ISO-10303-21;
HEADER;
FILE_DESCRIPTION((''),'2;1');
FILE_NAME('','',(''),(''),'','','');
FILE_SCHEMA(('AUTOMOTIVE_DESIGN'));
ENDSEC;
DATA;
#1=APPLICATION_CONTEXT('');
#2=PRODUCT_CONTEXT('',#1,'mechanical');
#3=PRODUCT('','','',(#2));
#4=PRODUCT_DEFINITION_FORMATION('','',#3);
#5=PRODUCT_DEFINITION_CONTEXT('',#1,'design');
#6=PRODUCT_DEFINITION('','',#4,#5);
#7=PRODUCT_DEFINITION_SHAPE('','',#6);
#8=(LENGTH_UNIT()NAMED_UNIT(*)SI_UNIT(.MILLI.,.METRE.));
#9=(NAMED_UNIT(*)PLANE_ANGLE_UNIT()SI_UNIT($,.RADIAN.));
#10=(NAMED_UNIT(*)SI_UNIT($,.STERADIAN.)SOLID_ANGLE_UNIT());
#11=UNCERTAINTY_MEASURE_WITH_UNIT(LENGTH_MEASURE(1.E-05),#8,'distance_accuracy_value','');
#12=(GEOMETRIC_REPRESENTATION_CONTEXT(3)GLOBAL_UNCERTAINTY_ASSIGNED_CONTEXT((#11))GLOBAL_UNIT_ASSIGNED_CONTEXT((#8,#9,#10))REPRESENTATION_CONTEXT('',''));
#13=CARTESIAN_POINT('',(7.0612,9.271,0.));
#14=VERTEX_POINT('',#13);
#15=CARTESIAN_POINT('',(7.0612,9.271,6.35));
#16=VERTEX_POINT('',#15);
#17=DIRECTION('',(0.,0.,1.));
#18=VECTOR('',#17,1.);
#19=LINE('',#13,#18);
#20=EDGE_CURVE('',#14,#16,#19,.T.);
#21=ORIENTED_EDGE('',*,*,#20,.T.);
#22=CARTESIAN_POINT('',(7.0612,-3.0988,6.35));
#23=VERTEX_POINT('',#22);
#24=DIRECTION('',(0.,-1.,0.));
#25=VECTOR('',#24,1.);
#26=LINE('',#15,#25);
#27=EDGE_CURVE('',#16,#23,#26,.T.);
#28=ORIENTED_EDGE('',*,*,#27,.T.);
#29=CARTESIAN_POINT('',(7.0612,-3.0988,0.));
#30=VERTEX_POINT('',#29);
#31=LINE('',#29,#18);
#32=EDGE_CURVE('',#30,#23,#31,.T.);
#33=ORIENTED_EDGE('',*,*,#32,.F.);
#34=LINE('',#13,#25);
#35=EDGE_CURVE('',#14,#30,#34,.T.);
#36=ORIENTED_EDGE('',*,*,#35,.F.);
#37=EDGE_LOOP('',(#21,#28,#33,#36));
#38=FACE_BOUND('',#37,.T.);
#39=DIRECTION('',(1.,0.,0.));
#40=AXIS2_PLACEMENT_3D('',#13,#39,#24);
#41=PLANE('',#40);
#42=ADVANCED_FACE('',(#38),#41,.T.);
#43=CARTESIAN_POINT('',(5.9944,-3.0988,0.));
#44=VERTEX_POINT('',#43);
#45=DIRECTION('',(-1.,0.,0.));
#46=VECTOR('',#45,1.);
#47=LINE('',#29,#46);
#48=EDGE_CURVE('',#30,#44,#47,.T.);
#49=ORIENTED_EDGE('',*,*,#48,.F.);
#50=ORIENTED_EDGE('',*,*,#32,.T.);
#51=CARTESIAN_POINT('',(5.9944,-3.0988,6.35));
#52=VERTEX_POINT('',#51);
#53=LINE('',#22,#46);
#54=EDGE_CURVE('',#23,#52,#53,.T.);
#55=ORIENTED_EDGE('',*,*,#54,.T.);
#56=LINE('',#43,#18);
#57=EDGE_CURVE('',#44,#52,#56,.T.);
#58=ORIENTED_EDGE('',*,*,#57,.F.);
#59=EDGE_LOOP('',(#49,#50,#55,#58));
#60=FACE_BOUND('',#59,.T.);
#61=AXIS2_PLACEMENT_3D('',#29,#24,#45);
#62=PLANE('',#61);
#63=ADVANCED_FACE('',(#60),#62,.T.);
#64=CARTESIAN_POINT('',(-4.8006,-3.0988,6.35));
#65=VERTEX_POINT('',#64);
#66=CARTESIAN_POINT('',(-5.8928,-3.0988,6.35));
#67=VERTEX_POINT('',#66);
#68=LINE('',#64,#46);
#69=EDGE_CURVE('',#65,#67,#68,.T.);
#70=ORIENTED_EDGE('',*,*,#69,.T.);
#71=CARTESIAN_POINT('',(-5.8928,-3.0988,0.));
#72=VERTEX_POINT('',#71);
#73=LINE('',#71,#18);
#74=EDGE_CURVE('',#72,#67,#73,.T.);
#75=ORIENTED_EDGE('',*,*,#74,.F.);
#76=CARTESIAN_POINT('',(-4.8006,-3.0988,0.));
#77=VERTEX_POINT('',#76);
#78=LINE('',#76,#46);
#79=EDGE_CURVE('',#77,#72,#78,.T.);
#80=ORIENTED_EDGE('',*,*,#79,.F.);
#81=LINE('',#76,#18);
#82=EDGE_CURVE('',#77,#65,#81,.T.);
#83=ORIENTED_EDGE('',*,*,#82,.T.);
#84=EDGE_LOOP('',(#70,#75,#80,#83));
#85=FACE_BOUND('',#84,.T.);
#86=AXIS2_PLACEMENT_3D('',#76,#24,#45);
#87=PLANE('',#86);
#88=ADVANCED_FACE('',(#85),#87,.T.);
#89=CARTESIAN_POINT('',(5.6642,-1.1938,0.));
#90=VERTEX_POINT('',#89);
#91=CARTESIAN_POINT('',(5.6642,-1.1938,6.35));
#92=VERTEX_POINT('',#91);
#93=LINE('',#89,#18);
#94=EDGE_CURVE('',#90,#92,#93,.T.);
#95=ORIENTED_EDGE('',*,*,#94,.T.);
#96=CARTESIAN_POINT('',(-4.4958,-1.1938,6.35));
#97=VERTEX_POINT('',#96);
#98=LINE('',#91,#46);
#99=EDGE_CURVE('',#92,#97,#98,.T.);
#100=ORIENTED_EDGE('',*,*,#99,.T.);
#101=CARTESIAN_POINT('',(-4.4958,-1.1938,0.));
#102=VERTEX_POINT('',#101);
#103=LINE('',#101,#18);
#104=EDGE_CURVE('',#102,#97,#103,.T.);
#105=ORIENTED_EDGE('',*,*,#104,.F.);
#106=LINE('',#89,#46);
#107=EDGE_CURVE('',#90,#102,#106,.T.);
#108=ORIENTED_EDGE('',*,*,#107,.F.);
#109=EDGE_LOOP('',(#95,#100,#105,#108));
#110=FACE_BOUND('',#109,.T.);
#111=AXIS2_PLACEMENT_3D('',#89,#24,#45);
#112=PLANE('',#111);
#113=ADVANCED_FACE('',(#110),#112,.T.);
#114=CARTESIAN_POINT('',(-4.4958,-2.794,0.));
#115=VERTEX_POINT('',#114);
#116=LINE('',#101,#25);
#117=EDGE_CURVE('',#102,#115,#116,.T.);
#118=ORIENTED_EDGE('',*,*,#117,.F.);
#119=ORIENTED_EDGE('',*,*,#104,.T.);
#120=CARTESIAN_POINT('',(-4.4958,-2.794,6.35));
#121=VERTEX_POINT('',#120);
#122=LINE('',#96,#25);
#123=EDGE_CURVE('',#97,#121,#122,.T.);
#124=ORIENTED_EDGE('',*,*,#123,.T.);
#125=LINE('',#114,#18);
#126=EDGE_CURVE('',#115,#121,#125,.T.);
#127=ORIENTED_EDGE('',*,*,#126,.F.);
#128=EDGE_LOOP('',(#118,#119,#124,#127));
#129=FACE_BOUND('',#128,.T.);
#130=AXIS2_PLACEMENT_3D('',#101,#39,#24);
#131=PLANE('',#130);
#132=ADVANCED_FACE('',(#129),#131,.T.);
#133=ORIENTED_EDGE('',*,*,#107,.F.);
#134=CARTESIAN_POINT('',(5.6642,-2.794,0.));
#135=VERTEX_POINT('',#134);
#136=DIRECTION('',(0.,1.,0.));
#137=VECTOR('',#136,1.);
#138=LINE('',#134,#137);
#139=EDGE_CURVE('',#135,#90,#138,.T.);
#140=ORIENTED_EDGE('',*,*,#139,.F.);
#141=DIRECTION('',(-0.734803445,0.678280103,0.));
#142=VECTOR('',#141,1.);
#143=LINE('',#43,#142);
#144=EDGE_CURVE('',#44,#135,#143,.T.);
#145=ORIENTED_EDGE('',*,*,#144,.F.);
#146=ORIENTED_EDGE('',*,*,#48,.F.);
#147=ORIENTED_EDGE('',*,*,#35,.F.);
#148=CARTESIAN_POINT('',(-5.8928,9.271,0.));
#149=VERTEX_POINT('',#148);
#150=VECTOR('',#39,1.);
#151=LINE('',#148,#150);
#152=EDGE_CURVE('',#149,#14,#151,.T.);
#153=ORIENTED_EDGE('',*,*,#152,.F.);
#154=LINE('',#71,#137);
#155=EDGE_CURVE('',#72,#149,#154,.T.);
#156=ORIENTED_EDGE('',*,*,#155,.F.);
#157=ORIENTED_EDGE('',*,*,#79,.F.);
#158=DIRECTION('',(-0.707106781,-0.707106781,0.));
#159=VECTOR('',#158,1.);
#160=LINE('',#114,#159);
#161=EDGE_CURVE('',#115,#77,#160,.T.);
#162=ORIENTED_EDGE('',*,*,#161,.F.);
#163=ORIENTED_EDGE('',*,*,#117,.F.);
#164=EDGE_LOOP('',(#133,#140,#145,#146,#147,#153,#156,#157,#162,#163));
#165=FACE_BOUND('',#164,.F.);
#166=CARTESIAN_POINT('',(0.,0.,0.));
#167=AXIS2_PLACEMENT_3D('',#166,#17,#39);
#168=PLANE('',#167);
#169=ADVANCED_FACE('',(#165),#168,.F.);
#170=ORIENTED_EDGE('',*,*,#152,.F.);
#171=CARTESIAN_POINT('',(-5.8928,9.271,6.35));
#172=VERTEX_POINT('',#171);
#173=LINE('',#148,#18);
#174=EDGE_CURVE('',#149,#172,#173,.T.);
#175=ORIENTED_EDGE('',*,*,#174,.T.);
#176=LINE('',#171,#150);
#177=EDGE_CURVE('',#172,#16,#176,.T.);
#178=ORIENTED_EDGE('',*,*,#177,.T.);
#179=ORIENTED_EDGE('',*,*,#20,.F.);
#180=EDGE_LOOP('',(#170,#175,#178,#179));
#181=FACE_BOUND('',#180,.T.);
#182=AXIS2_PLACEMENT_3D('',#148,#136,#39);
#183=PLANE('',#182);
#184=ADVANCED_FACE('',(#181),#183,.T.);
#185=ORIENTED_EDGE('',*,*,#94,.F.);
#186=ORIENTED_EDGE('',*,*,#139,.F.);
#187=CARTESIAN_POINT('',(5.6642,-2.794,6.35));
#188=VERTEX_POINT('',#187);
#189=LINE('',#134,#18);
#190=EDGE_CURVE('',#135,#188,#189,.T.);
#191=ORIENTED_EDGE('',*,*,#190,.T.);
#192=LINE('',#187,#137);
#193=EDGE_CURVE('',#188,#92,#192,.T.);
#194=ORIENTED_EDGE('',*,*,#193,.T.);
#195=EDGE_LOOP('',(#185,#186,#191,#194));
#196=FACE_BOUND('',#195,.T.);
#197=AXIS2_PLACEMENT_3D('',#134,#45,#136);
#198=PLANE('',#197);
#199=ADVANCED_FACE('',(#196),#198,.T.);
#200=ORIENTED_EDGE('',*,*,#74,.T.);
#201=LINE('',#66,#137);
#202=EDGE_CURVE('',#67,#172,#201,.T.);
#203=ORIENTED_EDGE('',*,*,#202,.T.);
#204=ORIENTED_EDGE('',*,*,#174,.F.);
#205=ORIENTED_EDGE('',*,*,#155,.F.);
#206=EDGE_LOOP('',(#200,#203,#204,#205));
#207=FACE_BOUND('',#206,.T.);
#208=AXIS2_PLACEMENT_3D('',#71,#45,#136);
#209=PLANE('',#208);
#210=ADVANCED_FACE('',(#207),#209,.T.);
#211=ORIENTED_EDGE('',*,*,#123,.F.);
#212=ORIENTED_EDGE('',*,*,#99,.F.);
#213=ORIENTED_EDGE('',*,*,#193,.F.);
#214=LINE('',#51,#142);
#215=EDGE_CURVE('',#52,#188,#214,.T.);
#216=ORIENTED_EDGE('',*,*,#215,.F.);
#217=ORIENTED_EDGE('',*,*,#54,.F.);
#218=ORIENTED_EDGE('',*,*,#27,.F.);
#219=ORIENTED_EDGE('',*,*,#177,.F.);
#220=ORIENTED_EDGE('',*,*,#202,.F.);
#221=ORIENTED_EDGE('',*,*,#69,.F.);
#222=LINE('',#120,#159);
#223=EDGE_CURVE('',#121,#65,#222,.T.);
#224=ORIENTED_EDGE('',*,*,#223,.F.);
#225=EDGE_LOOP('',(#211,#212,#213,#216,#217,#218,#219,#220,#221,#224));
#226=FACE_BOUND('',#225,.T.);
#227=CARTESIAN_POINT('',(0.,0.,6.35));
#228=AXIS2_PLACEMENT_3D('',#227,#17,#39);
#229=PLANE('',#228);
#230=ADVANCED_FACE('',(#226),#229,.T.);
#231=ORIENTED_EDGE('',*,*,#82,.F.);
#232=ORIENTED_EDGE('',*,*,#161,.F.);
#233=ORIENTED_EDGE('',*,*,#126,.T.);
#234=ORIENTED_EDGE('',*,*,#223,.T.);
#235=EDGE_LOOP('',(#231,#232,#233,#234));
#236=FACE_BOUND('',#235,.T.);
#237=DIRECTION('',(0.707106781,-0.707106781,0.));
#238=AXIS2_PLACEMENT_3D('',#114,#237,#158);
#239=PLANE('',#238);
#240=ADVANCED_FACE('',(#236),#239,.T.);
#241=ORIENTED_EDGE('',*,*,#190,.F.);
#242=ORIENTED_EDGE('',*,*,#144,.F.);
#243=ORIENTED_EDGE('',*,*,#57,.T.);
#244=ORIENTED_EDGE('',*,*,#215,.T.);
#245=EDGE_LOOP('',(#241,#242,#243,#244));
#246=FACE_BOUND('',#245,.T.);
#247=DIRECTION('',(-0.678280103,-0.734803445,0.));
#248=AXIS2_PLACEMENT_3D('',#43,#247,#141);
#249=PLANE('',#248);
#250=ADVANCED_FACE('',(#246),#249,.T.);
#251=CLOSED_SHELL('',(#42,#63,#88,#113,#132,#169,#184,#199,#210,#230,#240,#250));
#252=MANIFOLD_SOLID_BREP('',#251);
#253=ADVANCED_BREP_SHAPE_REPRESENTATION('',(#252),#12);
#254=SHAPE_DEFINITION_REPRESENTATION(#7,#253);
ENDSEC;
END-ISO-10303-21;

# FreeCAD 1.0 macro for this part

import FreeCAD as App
import Part
import Sketcher

V = App.Vector
Q = App.Units.Quantity

doc = App.newDocument("Part")
params = doc.addObject("Spreadsheet::Sheet", "Params")
for row, (alias, value) in enumerate([
    ("sketch1_width", "0.4 in"),
    ("sketch1_width2", "0.51 in"),
    ("sketch1_width3", "0.043 in"),
    ("sketch1_width4", "0.042 in"),
    ("sketch1_height", "0.487 in"),
    ("pad1_length", "0.25 in"),
], start=1):
    params.set(f"A{row}", alias)
    params.set(f"B{row}", "=" + value)
    params.setAlias(f"B{row}", alias)

body = doc.addObject("PartDesign::Body", "Body")

# Sketch on XY plane
sketch1 = body.newObject("Sketcher::SketchObject", "Sketch")
sketch1.AttachmentSupport = (doc.getObject("XY_Plane"), [""])
sketch1.MapMode = "FlatFace"
sketch1.addGeometry([
    Part.LineSegment(V(7.06, 9.27, 0), V(-5.89, 9.27, 0)),  # 0
    Part.LineSegment(V(-5.89, 9.27, 0), V(-5.89, -3.1, 0)),  # 1
    Part.LineSegment(V(-5.89, -3.1, 0), V(-4.8, -3.1, 0)),  # 2
    Part.LineSegment(V(-4.8, -3.1, 0), V(-4.5, -2.79, 0)),  # 3
    Part.LineSegment(V(-4.5, -2.79, 0), V(-4.5, -1.19, 0)),  # 4
    Part.LineSegment(V(-4.5, -1.19, 0), V(5.66, -1.19, 0)),  # 5
    Part.LineSegment(V(5.66, -1.19, 0), V(5.66, -2.79, 0)),  # 6
    Part.LineSegment(V(5.66, -2.79, 0), V(5.99, -3.1, 0)),  # 7
    Part.LineSegment(V(5.99, -3.1, 0), V(7.06, -3.1, 0)),  # 8
    Part.LineSegment(V(7.06, -3.1, 0), V(7.06, 9.27, 0)),  # 9
], False)
sketch1.addConstraint([
    Sketcher.Constraint("Coincident", 0, 2, 1, 1),
    Sketcher.Constraint("Coincident", 1, 2, 2, 1),
    Sketcher.Constraint("Coincident", 2, 2, 3, 1),
    Sketcher.Constraint("Coincident", 3, 2, 4, 1),
    Sketcher.Constraint("Coincident", 4, 2, 5, 1),
    Sketcher.Constraint("Coincident", 5, 2, 6, 1),
    Sketcher.Constraint("Coincident", 6, 2, 7, 1),
    Sketcher.Constraint("Coincident", 7, 2, 8, 1),
    Sketcher.Constraint("Coincident", 8, 2, 9, 1),
    Sketcher.Constraint("Coincident", 9, 2, 0, 1),
    Sketcher.Constraint("Horizontal", 0),
    Sketcher.Constraint("Vertical", 1),
    Sketcher.Constraint("Horizontal", 2),
    Sketcher.Constraint("Vertical", 4),
    Sketcher.Constraint("Horizontal", 5),
    Sketcher.Constraint("Vertical", 6),
    Sketcher.Constraint("Horizontal", 8),
    Sketcher.Constraint("Vertical", 9),
    Sketcher.Constraint("Horizontal", 3, 2, 6, 2),
    Sketcher.Constraint("Horizontal", 2, 2, 7, 2),
    Sketcher.Constraint("DistanceX", 5, 1, 5, 2, Q("0.4 in")),
    Sketcher.Constraint("Angle", 3, Q("45 deg")),
    Sketcher.Constraint("DistanceX", 0, 2, 0, 1, Q("0.51 in")),
    Sketcher.Constraint("DistanceX", 2, 1, 2, 2, Q("0.043 in")),
    Sketcher.Constraint("DistanceX", 8, 1, 8, 2, Q("0.042 in")),
    Sketcher.Constraint("DistanceY", 1, 2, 1, 1, Q("0.487 in")),
    Sketcher.Constraint("DistanceY", 4, 1, 4, 2, Q("0.063 in")),
    Sketcher.Constraint("DistanceY", 3, 2, -1, 1, Q("0.11 in")),
    Sketcher.Constraint("Angle", 7, Q("-42.7094 deg")),
    Sketcher.Constraint("DistanceX", 0, 2, -1, 1, Q("0.232 in")),
])
sketch1.setExpression("Constraints[20]", "Params.sketch1_width")
sketch1.setExpression("Constraints[22]", "Params.sketch1_width2")
sketch1.setExpression("Constraints[23]", "Params.sketch1_width3")
sketch1.setExpression("Constraints[24]", "Params.sketch1_width4")
sketch1.setExpression("Constraints[25]", "Params.sketch1_height")
pad1 = body.newObject("PartDesign::Pad", "Pad")
pad1.Profile = sketch1
pad1.setExpression("Length", "Params.pad1_length")

doc.recompute()
